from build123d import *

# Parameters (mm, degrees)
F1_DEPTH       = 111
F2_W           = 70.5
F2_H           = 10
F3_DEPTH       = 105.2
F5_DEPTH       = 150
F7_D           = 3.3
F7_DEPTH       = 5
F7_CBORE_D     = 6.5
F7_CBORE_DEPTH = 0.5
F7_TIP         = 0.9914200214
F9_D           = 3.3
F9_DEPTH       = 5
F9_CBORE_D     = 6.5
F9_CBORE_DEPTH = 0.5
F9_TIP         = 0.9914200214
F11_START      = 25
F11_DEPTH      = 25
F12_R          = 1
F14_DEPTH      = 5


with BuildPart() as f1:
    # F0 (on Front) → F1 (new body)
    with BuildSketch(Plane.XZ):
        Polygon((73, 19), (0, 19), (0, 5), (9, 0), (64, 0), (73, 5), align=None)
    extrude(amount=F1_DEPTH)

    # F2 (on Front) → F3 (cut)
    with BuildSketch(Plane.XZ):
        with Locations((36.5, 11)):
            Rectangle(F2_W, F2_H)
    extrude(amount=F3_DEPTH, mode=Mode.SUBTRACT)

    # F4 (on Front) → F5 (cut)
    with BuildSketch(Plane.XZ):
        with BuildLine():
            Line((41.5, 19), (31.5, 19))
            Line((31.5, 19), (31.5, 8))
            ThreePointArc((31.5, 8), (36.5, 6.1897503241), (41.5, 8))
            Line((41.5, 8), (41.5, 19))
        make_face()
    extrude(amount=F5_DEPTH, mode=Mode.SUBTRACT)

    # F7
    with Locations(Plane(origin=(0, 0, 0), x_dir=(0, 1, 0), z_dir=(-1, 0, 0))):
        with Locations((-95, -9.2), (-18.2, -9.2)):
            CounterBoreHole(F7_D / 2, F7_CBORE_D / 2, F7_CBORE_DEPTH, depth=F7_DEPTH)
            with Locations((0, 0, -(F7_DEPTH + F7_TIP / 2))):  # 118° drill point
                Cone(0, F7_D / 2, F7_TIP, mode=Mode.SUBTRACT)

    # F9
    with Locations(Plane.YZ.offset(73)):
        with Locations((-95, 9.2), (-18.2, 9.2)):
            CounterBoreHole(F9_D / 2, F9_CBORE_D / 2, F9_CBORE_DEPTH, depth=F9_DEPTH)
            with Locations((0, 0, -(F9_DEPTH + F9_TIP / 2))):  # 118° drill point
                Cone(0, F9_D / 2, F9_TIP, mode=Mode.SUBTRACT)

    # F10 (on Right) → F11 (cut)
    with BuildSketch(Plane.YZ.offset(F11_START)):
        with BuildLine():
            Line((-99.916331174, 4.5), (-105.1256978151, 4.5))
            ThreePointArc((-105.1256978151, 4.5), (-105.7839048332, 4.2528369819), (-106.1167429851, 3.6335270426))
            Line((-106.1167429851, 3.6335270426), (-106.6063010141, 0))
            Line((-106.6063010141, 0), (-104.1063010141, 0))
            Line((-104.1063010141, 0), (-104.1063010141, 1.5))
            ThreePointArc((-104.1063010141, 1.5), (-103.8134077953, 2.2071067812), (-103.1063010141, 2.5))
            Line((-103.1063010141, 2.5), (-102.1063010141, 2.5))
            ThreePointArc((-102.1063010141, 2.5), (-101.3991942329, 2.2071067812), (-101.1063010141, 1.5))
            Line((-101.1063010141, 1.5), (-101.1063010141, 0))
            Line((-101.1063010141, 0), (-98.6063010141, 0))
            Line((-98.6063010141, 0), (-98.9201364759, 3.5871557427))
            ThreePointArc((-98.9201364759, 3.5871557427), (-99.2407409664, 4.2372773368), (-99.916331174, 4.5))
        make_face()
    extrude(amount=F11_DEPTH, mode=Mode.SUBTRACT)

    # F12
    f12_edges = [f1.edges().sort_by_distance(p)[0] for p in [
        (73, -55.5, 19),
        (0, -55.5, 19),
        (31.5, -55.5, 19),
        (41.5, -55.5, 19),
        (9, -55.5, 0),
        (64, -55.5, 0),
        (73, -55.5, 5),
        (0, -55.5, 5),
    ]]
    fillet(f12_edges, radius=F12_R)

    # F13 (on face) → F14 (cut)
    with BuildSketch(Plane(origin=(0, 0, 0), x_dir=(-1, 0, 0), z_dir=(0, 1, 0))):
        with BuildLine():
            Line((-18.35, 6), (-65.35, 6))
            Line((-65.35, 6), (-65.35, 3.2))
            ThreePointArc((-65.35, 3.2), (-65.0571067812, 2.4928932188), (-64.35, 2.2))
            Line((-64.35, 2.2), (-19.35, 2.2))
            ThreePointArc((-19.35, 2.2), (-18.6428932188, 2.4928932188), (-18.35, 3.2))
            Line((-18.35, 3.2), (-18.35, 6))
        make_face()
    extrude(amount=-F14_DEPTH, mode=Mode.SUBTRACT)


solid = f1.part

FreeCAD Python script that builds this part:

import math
import FreeCAD as App
import Part
import Sketcher

V = App.Vector
Q = App.Units.Quantity


def edges_at(feature, points):
    """Names of the edges that pass closest to the given points."""
    edges = feature.Shape.Edges
    near = lambda p: min(range(len(edges)), key=lambda i: edges[i].distToShape(Part.Vertex(*p))[0])
    return sorted({f"Edge{near(p) + 1}" for p in points})


def add_polygon(sketch, points):
    """Adds a closed chain of lines whose ends are joined by coincident constraints."""
    first, n = sketch.GeometryCount, len(points)
    for a, b in zip(points, points[1:] + points[:1]):
        sketch.addGeometry(Part.LineSegment(App.Vector(*a, 0), App.Vector(*b, 0)), False)
    for i in range(n):
        sketch.addConstraint(Sketcher.Constraint("Coincident", first + i, 2, first + (i + 1) % n, 1))

doc = App.newDocument("Part")
body = doc.addObject("PartDesign::Body", "Body")

# Sketch on XZ plane
sketch1 = body.newObject("Sketcher::SketchObject", "Sketch")
sketch1.AttachmentSupport = (doc.getObject("XZ_Plane"), [""])
sketch1.MapMode = "FlatFace"
add_polygon(sketch1, [(73, 19), (0, 19), (0, 5), (9, 0), (64, 0), (73, 5)])  # lines 0-5
sketch1.addConstraint([
    Sketcher.Constraint("Horizontal", 0),
    Sketcher.Constraint("Vertical", 1),
    Sketcher.Constraint("Horizontal", 3),
    Sketcher.Constraint("Vertical", 5),
    Sketcher.Constraint("PointOnObject", 0, 2, -2),
    Sketcher.Constraint("PointOnObject", 2, 2, -1),
    Sketcher.Constraint("Horizontal", 1, 2, 4, 2),
    Sketcher.Constraint("Equal", 2, 4),
    Sketcher.Constraint("DistanceX", 0, 2, 0, 1, 73.0),
    Sketcher.Constraint("DistanceX", 3, 1, 3, 2, 55.0),
    Sketcher.Constraint("DistanceY", 1, 2, 1, 1, 14.0),
    Sketcher.Constraint("DistanceY", -1, 1, 0, 2, 19.0),
])
pad1 = body.newObject("PartDesign::Pad", "Pad")
pad1.Profile = sketch1
pad1.Length = 111

# Sketch on XZ plane
sketch2 = body.newObject("Sketcher::SketchObject", "Sketch001")
sketch2.AttachmentSupport = (doc.getObject("XZ_Plane"), [""])
sketch2.MapMode = "FlatFace"
add_polygon(sketch2, [(1, 16), (1, 6), (72, 6), (72, 16)])  # lines 0-3
sketch2.addConstraint([
    Sketcher.Constraint("Vertical", 0),
    Sketcher.Constraint("Horizontal", 1),
    Sketcher.Constraint("Vertical", 2),
    Sketcher.Constraint("Horizontal", 3),
    Sketcher.Constraint("DistanceY", 0, 2, 0, 1, 10.0),
    Sketcher.Constraint("DistanceX", 1, 1, 1, 2, 70.5),
    Sketcher.Constraint("DistanceY", -1, 1, 0, 2, 6.0),
    Sketcher.Constraint("DistanceX", -1, 1, 0, 2, 1.25),
])
pocket1 = body.newObject("PartDesign::Pocket", "Pocket")
pocket1.Profile = sketch2
pocket1.Length = 105.2
pocket1.Reversed = True

# Sketch on XZ plane
sketch3 = body.newObject("Sketcher::SketchObject", "Sketch002")
sketch3.AttachmentSupport = (doc.getObject("XZ_Plane"), [""])
sketch3.MapMode = "FlatFace"
sketch3.addGeometry([
    Part.LineSegment(V(42, 19, 0), V(32, 19, 0)),
    Part.LineSegment(V(32, 19, 0), V(32, 8, 0)),
    Part.ArcOfCircle(Part.Circle(V(36, 14, 0), V(0, 0, 1), 8), math.radians(-130), math.radians(-50)),
    Part.LineSegment(V(42, 8, 0), V(42, 19, 0)),
], False)
sketch3.addConstraint([
    Sketcher.Constraint("Coincident", 0, 2, 1, 1),
    Sketcher.Constraint("Coincident", 1, 2, 2, 1),
    Sketcher.Constraint("Coincident", 2, 2, 3, 1),
    Sketcher.Constraint("Coincident", 3, 2, 0, 1),
    Sketcher.Constraint("Horizontal", 0),
    Sketcher.Constraint("Vertical", 1),
    Sketcher.Constraint("Vertical", 3),
    Sketcher.Constraint("Horizontal", 1, 2, 2, 2),
    Sketcher.Constraint("DistanceX", 0, 2, 0, 1, 10.0),
    Sketcher.Constraint("DistanceY", 1, 2, 1, 1, 11.0),
    Sketcher.Constraint("DistanceY", -1, 1, 2, 3, 14.0),
    Sketcher.Constraint("DistanceY", -1, 1, 0, 2, 19.0),
    Sketcher.Constraint("DistanceX", -1, 1, 2, 3, 36.5),
])
pocket2 = body.newObject("PartDesign::Pocket", "Pocket001")
pocket2.Profile = sketch3
pocket2.Length = 150
pocket2.Reversed = True

# Sketch on YZ plane
sketch4 = body.newObject("Sketcher::SketchObject", "Sketch003")
sketch4.AttachmentSupport = (doc.getObject("YZ_Plane"), [""])
sketch4.MapMode = "FlatFace"
sketch4.addGeometry([
    Part.Circle(V(-95, 9.2, 0), V(0, 0, 1), 1.6),
    Part.Circle(V(-18.2, 9.2, 0), V(0, 0, 1), 1.6),
], False)
sketch4.addConstraint([
    Sketcher.Constraint("Equal", 0, 1),
    Sketcher.Constraint("Horizontal", 0, 3, 1, 3),
    Sketcher.Constraint("Diameter", 0, 3.3),
    Sketcher.Constraint("DistanceX", 0, 3, -1, 1, 95.0),
    Sketcher.Constraint("DistanceY", -1, 1, 0, 3, 9.2),
    Sketcher.Constraint("DistanceX", 1, 3, -1, 1, 18.2),
])
doc.recompute()
hole = body.newObject("PartDesign::Hole", "Hole")
hole.Profile = sketch4
hole.ThreadType = "None"
hole.Diameter = 3.3
hole.DepthType = "Dimension"
hole.Depth = 5
hole.DrillPoint = "Angled"
hole.DrillPointAngle = 118
hole.HoleCutType = "Counterbore"
hole.HoleCutDiameter = 6.5
hole.HoleCutDepth = 0.5
hole.Reversed = True

# Sketch on YZ plane
sketch5 = body.newObject("Sketcher::SketchObject", "Sketch004")
sketch5.AttachmentSupport = (doc.getObject("YZ_Plane"), [""])
sketch5.MapMode = "FlatFace"
sketch5.AttachmentOffset = App.Placement(V(0, 0, 73), App.Rotation())
sketch5.addGeometry([
    Part.Circle(V(-95, 9.2, 0), V(0, 0, 1), 1.6),
    Part.Circle(V(-18.2, 9.2, 0), V(0, 0, 1), 1.6),
], False)
sketch5.addConstraint([
    Sketcher.Constraint("Equal", 0, 1),
    Sketcher.Constraint("Horizontal", 0, 3, 1, 3),
    Sketcher.Constraint("Diameter", 0, 3.3),
    Sketcher.Constraint("DistanceX", 0, 3, -1, 1, 95.0),
    Sketcher.Constraint("DistanceY", -1, 1, 0, 3, 9.2),
    Sketcher.Constraint("DistanceX", 1, 3, -1, 1, 18.2),
])
doc.recompute()
hole2 = body.newObject("PartDesign::Hole", "Hole001")
hole2.Profile = sketch5
hole2.ThreadType = "None"
hole2.Diameter = 3.3
hole2.DepthType = "Dimension"
hole2.Depth = 5
hole2.DrillPoint = "Angled"
hole2.DrillPointAngle = 118
hole2.HoleCutType = "Counterbore"
hole2.HoleCutDiameter = 6.5
hole2.HoleCutDepth = 0.5

# Sketch on YZ plane
sketch6 = body.newObject("Sketcher::SketchObject", "Sketch005")
sketch6.AttachmentSupport = (doc.getObject("YZ_Plane"), [""])
sketch6.MapMode = "FlatFace"
sketch6.AttachmentOffset = App.Placement(V(0, 0, 25), App.Rotation())
sketch6.addGeometry([
    Part.LineSegment(V(-99.9, 4.5, 0), V(-105.1, 4.5, 0)),  # 0
    Part.ArcOfCircle(Part.Circle(V(-105.1, 3.5, 0), V(0, 0, 1), 1), math.radians(90), math.radians(172)),  # 1
    Part.LineSegment(V(-106.1, 3.6, 0), V(-106.6, 0, 0)),  # 2
    Part.LineSegment(V(-106.6, 0, 0), V(-104.1, 0, 0)),  # 3
    Part.LineSegment(V(-104.1, 0, 0), V(-104.1, 1.5, 0)),  # 4
    Part.ArcOfCircle(Part.Circle(V(-103.1, 1.5, 0), V(0, 0, 1), 1), math.radians(90), math.radians(180)),  # 5
    Part.LineSegment(V(-103.1, 2.5, 0), V(-102.1, 2.5, 0)),  # 6
    Part.ArcOfCircle(Part.Circle(V(-102.1, 1.5, 0), V(0, 0, 1), 1), math.radians(0), math.radians(90)),  # 7
    Part.LineSegment(V(-101.1, 1.5, 0), V(-101.1, 0, 0)),  # 8
    Part.LineSegment(V(-101.1, 0, 0), V(-98.6, 0, 0)),  # 9
    Part.LineSegment(V(-98.6, 0, 0), V(-98.9, 3.6, 0)),  # 10
    Part.ArcOfCircle(Part.Circle(V(-99.9, 3.5, 0), V(0, 0, 1), 1), math.radians(5), math.radians(90)),  # 11
], False)
sketch6.addConstraint([
    Sketcher.Constraint("Tangent", 0, 2, 1, 1),
    Sketcher.Constraint("Tangent", 1, 2, 2, 1),
    Sketcher.Constraint("Coincident", 2, 2, 3, 1),
    Sketcher.Constraint("Coincident", 3, 2, 4, 1),
    Sketcher.Constraint("Tangent", 4, 2, 5, 2),
    Sketcher.Constraint("Tangent", 5, 1, 6, 1),
    Sketcher.Constraint("Tangent", 6, 2, 7, 2),
    Sketcher.Constraint("Tangent", 7, 1, 8, 1),
    Sketcher.Constraint("Coincident", 8, 2, 9, 1),
    Sketcher.Constraint("Coincident", 9, 2, 10, 1),
    Sketcher.Constraint("Tangent", 10, 2, 11, 1),
    Sketcher.Constraint("Tangent", 11, 2, 0, 1),
    Sketcher.Constraint("Horizontal", 0),
    Sketcher.Constraint("Horizontal", 3),
    Sketcher.Constraint("Vertical", 4),
    Sketcher.Constraint("Horizontal", 6),
    Sketcher.Constraint("Vertical", 8),
    Sketcher.Constraint("Horizontal", 9),
    Sketcher.Constraint("Equal", 1, 5),
    Sketcher.Constraint("Equal", 5, 7),
    Sketcher.Constraint("Equal", 7, 11),
    Sketcher.Constraint("PointOnObject", 2, 2, -1),
    Sketcher.Constraint("PointOnObject", 8, 2, -1),
    Sketcher.Constraint("Equal", 3, 9),
    Sketcher.Constraint("Radius", 1, 1.0),
    Sketcher.Constraint("DistanceX", 6, 1, 6, 2, 1.0),
    Sketcher.Constraint("Angle", 10, Q("95 deg")),
    Sketcher.Constraint("DistanceX", 3, 1, 3, 2, 2.5),
    Sketcher.Constraint("DistanceY", 4, 1, 4, 2, 1.5),
    Sketcher.Constraint("DistanceY", 5, 3, 1, 3, 2.0),
    Sketcher.Constraint("DistanceX", 5, 3, -1, 1, 103.106301),
    Sketcher.Constraint("Distance", 2, 3.666359),
])
pocket3 = body.newObject("PartDesign::Pocket", "Pocket002")
pocket3.Profile = sketch6
pocket3.Length = 25
pocket3.Reversed = True
doc.recompute()

fillet = body.newObject("PartDesign::Fillet", "Fillet")
fillet.Base = (pocket3, edges_at(pocket3, [
    (73, -55.5, 19),
    (0, -55.5, 19),
    (31.5, -55.5, 19),
    (41.5, -55.5, 19),
    (9, -55.5, 0),
    (64, -55.5, 0),
    (73, -55.5, 5),
    (0, -55.5, 5),
]))
fillet.Radius = 1

# Sketch on XZ plane
sketch7 = body.newObject("Sketcher::SketchObject", "Sketch006")
sketch7.AttachmentSupport = (doc.getObject("XZ_Plane"), [""])
sketch7.MapMode = "FlatFace"
sketch7.addGeometry([
    Part.LineSegment(V(18.4, 6, 0), V(65.3, 6, 0)),  # 0
    Part.LineSegment(V(65.3, 6, 0), V(65.3, 3.2, 0)),  # 1
    Part.ArcOfCircle(Part.Circle(V(64.3, 3.2, 0), V(0, 0, 1), 1), math.radians(-90), math.radians(0)),  # 2
    Part.LineSegment(V(64.3, 2.2, 0), V(19.4, 2.2, 0)),  # 3
    Part.ArcOfCircle(Part.Circle(V(19.4, 3.2, 0), V(0, 0, 1), 1), math.radians(180), math.radians(270)),  # 4
    Part.LineSegment(V(18.4, 3.2, 0), V(18.4, 6, 0)),  # 5
], False)
sketch7.addConstraint([
    Sketcher.Constraint("Coincident", 0, 2, 1, 1),
    Sketcher.Constraint("Tangent", 1, 2, 2, 2),
    Sketcher.Constraint("Tangent", 2, 1, 3, 1),
    Sketcher.Constraint("Tangent", 3, 2, 4, 2),
    Sketcher.Constraint("Tangent", 4, 1, 5, 1),
    Sketcher.Constraint("Coincident", 5, 2, 0, 1),
    Sketcher.Constraint("Horizontal", 0),
    Sketcher.Constraint("Vertical", 1),
    Sketcher.Constraint("Horizontal", 3),
    Sketcher.Constraint("Vertical", 5),
    Sketcher.Constraint("Equal", 2, 4),
    Sketcher.Constraint("Radius", 2, 1.0),
    Sketcher.Constraint("DistanceX", 0, 1, 0, 2, 47.0),
    Sketcher.Constraint("DistanceY", 1, 2, 1, 1, 2.8),
    Sketcher.Constraint("DistanceY", -1, 1, 0, 2, 6.0),
    Sketcher.Constraint("DistanceX", -1, 1, 2, 3, 64.35),
])
pocket4 = body.newObject("PartDesign::Pocket", "Pocket003")
pocket4.Profile = sketch7
pocket4.Length = 5
pocket4.Reversed = True

doc.recompute()
